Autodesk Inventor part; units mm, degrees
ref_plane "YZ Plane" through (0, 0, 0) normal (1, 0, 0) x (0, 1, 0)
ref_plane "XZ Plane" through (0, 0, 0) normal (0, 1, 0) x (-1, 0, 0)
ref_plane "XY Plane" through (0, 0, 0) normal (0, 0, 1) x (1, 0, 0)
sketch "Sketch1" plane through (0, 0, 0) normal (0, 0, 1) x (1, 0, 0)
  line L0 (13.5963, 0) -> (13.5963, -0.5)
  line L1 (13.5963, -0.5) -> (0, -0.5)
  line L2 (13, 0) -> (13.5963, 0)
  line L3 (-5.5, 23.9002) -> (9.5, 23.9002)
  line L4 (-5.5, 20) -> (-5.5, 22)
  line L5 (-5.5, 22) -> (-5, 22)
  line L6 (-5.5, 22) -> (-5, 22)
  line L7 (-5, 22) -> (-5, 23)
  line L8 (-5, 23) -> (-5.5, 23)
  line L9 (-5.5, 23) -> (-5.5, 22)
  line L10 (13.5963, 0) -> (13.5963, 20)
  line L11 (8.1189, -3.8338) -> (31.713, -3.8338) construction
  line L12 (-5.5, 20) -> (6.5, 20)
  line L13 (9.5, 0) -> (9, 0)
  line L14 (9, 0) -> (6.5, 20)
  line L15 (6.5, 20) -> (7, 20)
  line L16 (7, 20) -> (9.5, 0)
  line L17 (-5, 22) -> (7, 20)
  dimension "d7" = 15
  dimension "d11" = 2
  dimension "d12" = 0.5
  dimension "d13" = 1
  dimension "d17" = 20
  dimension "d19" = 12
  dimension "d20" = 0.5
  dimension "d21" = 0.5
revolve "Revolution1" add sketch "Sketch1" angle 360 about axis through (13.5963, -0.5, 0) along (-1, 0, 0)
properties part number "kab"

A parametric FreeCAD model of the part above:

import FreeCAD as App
import Part
import Sketcher
from FreeCAD import Vector
Q = App.Units.Quantity


def add_polygon(sketch, points):
    """Adds a closed chain of lines whose ends are joined by coincident constraints."""
    first, n = sketch.GeometryCount, len(points)
    for a, b in zip(points, points[1:] + points[:1]):
        sketch.addGeometry(Part.LineSegment(App.Vector(*a, 0), App.Vector(*b, 0)), False)
    for i in range(n):
        sketch.addConstraint(Sketcher.Constraint("Coincident", first + i, 2, first + (i + 1) % n, 1))

doc = App.newDocument("Part")
body = doc.addObject("PartDesign::Body", "Body")

# Sketch on XY plane
sketch1 = body.newObject("Sketcher::SketchObject", "Sketch")
sketch1.AttachmentSupport = (doc.getObject("XY_Plane"), [""])
sketch1.MapMode = "FlatFace"
add_polygon(sketch1, [(-5.5, 20), (6.5, 20), (9, 0), (9.5, 0), (7, 20), (-5, 22), (-5, 23), (-5.5, 23)])  # lines 0-7
sketch1.addGeometry(Part.LineSegment(Vector(9.5, -0.5, 0), Vector(-5.5, -0.5, 0)), True)  # axis
sketch1.addConstraint(Sketcher.Constraint("Horizontal", 0))
sketch1.addConstraint(Sketcher.Constraint("Horizontal", 2))
sketch1.addConstraint(Sketcher.Constraint("Vertical", 5))
sketch1.addConstraint(Sketcher.Constraint("Horizontal", 6))
sketch1.addConstraint(Sketcher.Constraint("Vertical", 7))
sketch1.addConstraint(Sketcher.Constraint("Horizontal", 8))
sketch1.addConstraint(Sketcher.Constraint("PointOnObject", 1, 2, -1))
sketch1.addConstraint(Sketcher.Constraint("Parallel", 1, 3))
sketch1.addConstraint(Sketcher.Constraint("Horizontal", 0, 2, 3, 2))
sketch1.addConstraint(Sketcher.Constraint("Vertical", 2, 2, 8, 1))
sketch1.addConstraint(Sketcher.Constraint("Vertical", 7, 2, 8, 2))
sketch1.addConstraint(Sketcher.Constraint("Equal", 2, 6))
sketch1.addConstraint(Sketcher.Constraint("DistanceX", 0, 1, 0, 2, Q("12 mm")))
sketch1.addConstraint(Sketcher.Constraint("DistanceX", 8, 2, 8, 1, Q("15 mm")))
sketch1.addConstraint(Sketcher.Constraint("DistanceY", 5, 1, 5, 2, Q("1 mm")))
sketch1.addConstraint(Sketcher.Constraint("DistanceX", 2, 1, 2, 2, Q("0.5 mm")))
sketch1.addConstraint(Sketcher.Constraint("DistanceY", -1, 1, 0, 2, Q("20 mm")))
sketch1.addConstraint(Sketcher.Constraint("DistanceY", 0, 2, 4, 2, Q("2 mm")))
sketch1.addConstraint(Sketcher.Constraint("DistanceY", 8, 1, -1, 1, Q("0.5 mm")))
sketch1.addConstraint(Sketcher.Constraint("DistanceX", -1, 1, 1, 2, Q("9 mm")))
revolution = body.newObject("PartDesign::Revolution", "Revolution")
revolution.Profile = sketch1
revolution.ReferenceAxis = (sketch1, ["Axis0"])
revolution.Angle = 360

doc.recompute()
